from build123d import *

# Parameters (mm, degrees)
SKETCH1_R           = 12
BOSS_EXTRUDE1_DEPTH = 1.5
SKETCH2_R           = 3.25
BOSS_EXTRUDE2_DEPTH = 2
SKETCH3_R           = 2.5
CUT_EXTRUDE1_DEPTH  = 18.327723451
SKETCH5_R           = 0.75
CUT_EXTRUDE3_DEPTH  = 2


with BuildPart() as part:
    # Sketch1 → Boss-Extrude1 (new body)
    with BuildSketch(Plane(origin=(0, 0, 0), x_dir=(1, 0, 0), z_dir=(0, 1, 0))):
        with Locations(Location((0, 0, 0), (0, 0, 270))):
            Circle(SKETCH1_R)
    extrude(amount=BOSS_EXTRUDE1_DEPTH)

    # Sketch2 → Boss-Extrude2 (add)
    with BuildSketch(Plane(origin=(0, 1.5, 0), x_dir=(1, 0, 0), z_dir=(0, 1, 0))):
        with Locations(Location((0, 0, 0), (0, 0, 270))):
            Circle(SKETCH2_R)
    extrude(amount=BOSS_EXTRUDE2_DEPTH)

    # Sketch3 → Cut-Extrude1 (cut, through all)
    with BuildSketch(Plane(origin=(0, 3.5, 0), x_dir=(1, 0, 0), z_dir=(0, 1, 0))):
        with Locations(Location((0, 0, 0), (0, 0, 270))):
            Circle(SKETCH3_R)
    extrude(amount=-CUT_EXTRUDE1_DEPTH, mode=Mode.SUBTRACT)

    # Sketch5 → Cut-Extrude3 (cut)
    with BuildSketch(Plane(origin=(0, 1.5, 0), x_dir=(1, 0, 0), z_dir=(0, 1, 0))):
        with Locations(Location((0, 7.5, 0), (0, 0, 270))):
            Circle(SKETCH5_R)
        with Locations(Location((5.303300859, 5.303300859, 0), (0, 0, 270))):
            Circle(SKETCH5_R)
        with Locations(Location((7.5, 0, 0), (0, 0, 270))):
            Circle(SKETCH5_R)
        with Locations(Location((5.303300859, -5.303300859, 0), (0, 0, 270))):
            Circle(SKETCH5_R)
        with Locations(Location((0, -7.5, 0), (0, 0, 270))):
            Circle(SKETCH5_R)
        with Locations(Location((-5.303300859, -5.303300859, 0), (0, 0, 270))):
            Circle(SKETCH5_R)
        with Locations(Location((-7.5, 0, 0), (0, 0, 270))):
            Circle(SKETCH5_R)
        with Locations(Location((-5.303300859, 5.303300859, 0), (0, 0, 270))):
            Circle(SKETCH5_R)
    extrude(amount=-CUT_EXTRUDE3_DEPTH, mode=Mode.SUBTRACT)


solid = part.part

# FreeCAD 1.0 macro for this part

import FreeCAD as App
import Part
import Sketcher

V = App.Vector

doc = App.newDocument("Part")
body = doc.addObject("PartDesign::Body", "Body")

sketch1 = body.newObject("Sketcher::SketchObject", "Sketch")
sketch1.AttachmentSupport = (doc.getObject("XZ_Plane"), [""])
sketch1.MapMode = "FlatFace"
sketch1.addGeometry(Part.Circle(V(0, 0, 0), V(0, 0, 1), 12), False)
sketch1.addConstraint([
    Sketcher.Constraint("Coincident", 0, 3, -1, 1),
    Sketcher.Constraint("Diameter", 0, 24.0),
])
pad1 = body.newObject("PartDesign::Pad", "Pad")
pad1.Profile = sketch1
pad1.Length = 1.5
pad1.Reversed = True

sketch2 = body.newObject("Sketcher::SketchObject", "Sketch001")
sketch2.AttachmentSupport = (doc.getObject("XZ_Plane"), [""])
sketch2.MapMode = "FlatFace"
sketch2.AttachmentOffset = App.Placement(V(0, 0, -1.5), App.Rotation())
sketch2.addGeometry(Part.Circle(V(0, 0, 0), V(0, 0, 1), 3.2), False)
sketch2.addConstraint([
    Sketcher.Constraint("Coincident", 0, 3, -1, 1),
    Sketcher.Constraint("Diameter", 0, 6.5),
])
pad2 = body.newObject("PartDesign::Pad", "Pad001")
pad2.Profile = sketch2
pad2.Length = 2
pad2.Reversed = True

sketch3 = body.newObject("Sketcher::SketchObject", "Sketch002")
sketch3.AttachmentSupport = (doc.getObject("XZ_Plane"), [""])
sketch3.MapMode = "FlatFace"
sketch3.AttachmentOffset = App.Placement(V(0, 0, -3.5), App.Rotation())
sketch3.addGeometry(Part.Circle(V(0, 0, 0), V(0, 0, 1), 2.5), False)
sketch3.addConstraint([
    Sketcher.Constraint("Coincident", 0, 3, -1, 1),
    Sketcher.Constraint("Diameter", 0, 5.0),
])
pocket1 = body.newObject("PartDesign::Pocket", "Pocket")
pocket1.Profile = sketch3
pocket1.Type = "ThroughAll"
pocket1.Reversed = True

sketch4 = body.newObject("Sketcher::SketchObject", "Sketch003")
sketch4.AttachmentSupport = (doc.getObject("XZ_Plane"), [""])
sketch4.MapMode = "FlatFace"
sketch4.AttachmentOffset = App.Placement(V(0, 0, -1.5), App.Rotation())
sketch4.addGeometry([
    Part.Circle(V(0, -7.5, 0), V(0, 0, 1), 0.8),
    Part.Circle(V(5.3, -5.3, 0), V(0, 0, 1), 0.8),
    Part.Circle(V(7.5, 0, 0), V(0, 0, 1), 0.8),
    Part.Circle(V(5.3, 5.3, 0), V(0, 0, 1), 0.8),
    Part.Circle(V(0, 7.5, 0), V(0, 0, 1), 0.8),
    Part.Circle(V(-5.3, 5.3, 0), V(0, 0, 1), 0.8),
    Part.Circle(V(-7.5, 0, 0), V(0, 0, 1), 0.8),
    Part.Circle(V(-5.3, -5.3, 0), V(0, 0, 1), 0.8),
], False)
sketch4.addConstraint([
    Sketcher.Constraint("Equal", 0, 1),
    Sketcher.Constraint("Equal", 1, 2),
    Sketcher.Constraint("Equal", 2, 3),
    Sketcher.Constraint("Equal", 3, 4),
    Sketcher.Constraint("Equal", 4, 5),
    Sketcher.Constraint("Equal", 5, 6),
    Sketcher.Constraint("Equal", 6, 7),
    Sketcher.Constraint("Symmetric", 0, 3, 4, 3, -1, 1),
    Sketcher.Constraint("Symmetric", 1, 3, 5, 3, -1, 1),
    Sketcher.Constraint("Symmetric", 2, 3, 6, 3, -1, 1),
    Sketcher.Constraint("Symmetric", 3, 3, 7, 3, -1, 1),
    Sketcher.Constraint("Symmetric", 3, 3, 5, 3, -2),
    Sketcher.Constraint("PointOnObject", 0, 3, -2),
    Sketcher.Constraint("PointOnObject", 2, 3, -1),
    Sketcher.Constraint("Diameter", 0, 1.5),
    Sketcher.Constraint("DistanceY", 0, 3, 4, 3, 15.0),
    Sketcher.Constraint("DistanceX", -1, 1, 2, 3, 7.5),
    Sketcher.Constraint("DistanceX", -1, 1, 1, 3, 5.303301),
    Sketcher.Constraint("DistanceY", 1, 3, -1, 1, 5.303301),
])
pocket2 = body.newObject("PartDesign::Pocket", "Pocket001")
pocket2.Profile = sketch4
pocket2.Length = 2
pocket2.Reversed = True

doc.recompute()
